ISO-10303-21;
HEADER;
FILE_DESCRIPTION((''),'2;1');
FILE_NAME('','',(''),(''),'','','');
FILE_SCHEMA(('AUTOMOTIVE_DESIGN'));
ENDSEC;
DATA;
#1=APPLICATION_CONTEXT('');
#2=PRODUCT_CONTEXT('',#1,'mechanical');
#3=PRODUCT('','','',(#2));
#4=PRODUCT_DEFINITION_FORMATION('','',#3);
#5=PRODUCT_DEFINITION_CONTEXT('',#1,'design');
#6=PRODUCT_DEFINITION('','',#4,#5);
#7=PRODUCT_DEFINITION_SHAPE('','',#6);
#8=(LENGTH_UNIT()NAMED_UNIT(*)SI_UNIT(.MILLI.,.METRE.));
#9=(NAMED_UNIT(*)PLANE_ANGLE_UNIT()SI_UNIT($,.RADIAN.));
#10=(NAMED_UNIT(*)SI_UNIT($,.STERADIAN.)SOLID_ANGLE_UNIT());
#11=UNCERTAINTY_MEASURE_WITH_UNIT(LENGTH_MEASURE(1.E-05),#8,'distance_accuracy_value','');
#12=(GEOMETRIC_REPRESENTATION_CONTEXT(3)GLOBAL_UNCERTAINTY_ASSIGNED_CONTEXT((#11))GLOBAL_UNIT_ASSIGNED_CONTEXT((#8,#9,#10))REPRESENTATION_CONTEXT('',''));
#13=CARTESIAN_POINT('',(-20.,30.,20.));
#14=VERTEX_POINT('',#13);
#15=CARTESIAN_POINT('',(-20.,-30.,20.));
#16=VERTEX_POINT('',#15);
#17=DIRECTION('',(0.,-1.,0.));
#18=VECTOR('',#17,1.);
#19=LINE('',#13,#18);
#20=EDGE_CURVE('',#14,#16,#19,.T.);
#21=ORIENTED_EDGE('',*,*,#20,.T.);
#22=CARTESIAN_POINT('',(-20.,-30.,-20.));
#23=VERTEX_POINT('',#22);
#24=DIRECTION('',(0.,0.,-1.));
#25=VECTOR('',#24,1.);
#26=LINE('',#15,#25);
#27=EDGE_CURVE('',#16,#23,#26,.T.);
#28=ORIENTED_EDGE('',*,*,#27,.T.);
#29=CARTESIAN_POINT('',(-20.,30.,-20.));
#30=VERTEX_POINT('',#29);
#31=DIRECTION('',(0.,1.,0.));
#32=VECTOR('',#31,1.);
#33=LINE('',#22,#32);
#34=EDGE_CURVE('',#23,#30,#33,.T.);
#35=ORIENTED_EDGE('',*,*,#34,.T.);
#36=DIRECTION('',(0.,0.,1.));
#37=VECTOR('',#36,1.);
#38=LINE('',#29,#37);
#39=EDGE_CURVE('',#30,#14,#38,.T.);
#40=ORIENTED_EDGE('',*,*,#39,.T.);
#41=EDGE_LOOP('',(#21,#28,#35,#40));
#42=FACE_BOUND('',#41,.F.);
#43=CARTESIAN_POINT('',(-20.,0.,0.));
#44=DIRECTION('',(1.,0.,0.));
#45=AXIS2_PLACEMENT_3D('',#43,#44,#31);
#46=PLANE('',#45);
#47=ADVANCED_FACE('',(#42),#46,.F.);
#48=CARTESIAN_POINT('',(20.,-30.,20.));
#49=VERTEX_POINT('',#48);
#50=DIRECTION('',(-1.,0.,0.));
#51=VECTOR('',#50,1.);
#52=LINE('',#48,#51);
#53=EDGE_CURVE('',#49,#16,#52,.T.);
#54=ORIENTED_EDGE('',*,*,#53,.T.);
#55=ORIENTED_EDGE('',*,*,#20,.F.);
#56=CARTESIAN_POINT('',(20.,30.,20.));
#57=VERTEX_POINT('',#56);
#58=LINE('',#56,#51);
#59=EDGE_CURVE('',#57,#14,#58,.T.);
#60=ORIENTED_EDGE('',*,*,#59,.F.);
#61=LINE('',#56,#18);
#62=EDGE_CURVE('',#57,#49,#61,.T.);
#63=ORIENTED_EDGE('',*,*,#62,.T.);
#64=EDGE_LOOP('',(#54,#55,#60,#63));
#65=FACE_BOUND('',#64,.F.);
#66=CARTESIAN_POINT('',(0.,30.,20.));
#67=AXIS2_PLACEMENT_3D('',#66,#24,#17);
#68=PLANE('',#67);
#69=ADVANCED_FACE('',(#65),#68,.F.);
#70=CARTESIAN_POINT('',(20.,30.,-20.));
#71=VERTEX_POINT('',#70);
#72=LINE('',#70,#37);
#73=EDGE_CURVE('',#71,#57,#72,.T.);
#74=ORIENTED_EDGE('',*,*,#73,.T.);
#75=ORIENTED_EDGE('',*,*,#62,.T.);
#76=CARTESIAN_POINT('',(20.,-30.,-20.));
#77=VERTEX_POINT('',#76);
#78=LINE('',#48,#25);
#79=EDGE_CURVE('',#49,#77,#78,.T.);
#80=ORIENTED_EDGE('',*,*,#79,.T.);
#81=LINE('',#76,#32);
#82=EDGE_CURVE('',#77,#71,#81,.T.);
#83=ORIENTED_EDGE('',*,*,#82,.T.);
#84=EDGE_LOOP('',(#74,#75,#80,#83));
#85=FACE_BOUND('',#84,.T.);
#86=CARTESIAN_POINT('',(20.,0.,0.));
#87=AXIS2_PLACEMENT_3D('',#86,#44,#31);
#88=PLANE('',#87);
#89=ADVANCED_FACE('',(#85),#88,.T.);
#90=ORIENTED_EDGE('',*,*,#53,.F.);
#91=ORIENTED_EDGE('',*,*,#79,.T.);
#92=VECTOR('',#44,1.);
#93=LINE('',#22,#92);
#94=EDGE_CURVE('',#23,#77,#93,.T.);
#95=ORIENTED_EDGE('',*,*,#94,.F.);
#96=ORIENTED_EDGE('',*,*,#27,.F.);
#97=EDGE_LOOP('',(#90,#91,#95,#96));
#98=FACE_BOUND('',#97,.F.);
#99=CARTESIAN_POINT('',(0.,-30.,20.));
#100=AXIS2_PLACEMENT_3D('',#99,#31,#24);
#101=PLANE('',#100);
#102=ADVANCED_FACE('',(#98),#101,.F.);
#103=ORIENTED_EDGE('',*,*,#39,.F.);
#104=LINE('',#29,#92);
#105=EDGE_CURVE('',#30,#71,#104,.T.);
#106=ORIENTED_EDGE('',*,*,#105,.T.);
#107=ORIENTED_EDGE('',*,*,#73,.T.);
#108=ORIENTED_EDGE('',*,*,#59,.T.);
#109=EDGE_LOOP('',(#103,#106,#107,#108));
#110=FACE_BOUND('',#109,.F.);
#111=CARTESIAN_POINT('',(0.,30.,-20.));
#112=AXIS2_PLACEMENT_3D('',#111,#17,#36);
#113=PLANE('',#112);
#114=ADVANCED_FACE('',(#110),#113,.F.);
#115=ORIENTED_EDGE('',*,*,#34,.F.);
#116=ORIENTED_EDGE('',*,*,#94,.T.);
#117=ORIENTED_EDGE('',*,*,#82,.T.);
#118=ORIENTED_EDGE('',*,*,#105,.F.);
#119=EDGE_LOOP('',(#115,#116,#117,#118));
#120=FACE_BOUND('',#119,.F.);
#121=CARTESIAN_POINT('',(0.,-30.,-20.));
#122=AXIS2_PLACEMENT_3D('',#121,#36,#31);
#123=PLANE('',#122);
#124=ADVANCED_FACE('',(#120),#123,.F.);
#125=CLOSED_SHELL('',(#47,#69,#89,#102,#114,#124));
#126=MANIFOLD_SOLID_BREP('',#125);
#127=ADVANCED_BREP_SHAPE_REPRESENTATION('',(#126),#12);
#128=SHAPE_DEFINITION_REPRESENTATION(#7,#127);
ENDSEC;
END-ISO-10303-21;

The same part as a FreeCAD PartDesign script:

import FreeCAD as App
import Part
import Sketcher
from FreeCAD import Vector
Q = App.Units.Quantity


def add_polygon(sketch, points):
    """Adds a closed chain of lines whose ends are joined by coincident constraints."""
    first, n = sketch.GeometryCount, len(points)
    for a, b in zip(points, points[1:] + points[:1]):
        sketch.addGeometry(Part.LineSegment(App.Vector(*a, 0), App.Vector(*b, 0)), False)
    for i in range(n):
        sketch.addConstraint(Sketcher.Constraint("Coincident", first + i, 2, first + (i + 1) % n, 1))

doc = App.newDocument("Part")
body = doc.addObject("PartDesign::Body", "Body")

sketch1 = body.newObject("Sketcher::SketchObject", "Sketch")
sketch1.AttachmentSupport = (doc.getObject("YZ_Plane"), [""])
sketch1.MapMode = "FlatFace"
add_polygon(sketch1, [(-30, 20), (-30, -20), (30, -20), (30, 20)])
sketch1.addConstraint([
    Sketcher.Constraint("Vertical", 0),
    Sketcher.Constraint("Horizontal", 1),
    Sketcher.Constraint("Vertical", 2),
    Sketcher.Constraint("Horizontal", 3),
    Sketcher.Constraint("Symmetric", 0, 2, 2, 2, -1, 1),
    Sketcher.Constraint("DistanceX", 1, 1, 1, 2, Q("60 mm")),
    Sketcher.Constraint("DistanceY", 0, 2, 0, 1, Q("40 mm")),
])
pad1 = body.newObject("PartDesign::Pad", "Pad")
pad1.Profile = sketch1
pad1.Length = 40
pad1.Midplane = True

doc.recompute()
